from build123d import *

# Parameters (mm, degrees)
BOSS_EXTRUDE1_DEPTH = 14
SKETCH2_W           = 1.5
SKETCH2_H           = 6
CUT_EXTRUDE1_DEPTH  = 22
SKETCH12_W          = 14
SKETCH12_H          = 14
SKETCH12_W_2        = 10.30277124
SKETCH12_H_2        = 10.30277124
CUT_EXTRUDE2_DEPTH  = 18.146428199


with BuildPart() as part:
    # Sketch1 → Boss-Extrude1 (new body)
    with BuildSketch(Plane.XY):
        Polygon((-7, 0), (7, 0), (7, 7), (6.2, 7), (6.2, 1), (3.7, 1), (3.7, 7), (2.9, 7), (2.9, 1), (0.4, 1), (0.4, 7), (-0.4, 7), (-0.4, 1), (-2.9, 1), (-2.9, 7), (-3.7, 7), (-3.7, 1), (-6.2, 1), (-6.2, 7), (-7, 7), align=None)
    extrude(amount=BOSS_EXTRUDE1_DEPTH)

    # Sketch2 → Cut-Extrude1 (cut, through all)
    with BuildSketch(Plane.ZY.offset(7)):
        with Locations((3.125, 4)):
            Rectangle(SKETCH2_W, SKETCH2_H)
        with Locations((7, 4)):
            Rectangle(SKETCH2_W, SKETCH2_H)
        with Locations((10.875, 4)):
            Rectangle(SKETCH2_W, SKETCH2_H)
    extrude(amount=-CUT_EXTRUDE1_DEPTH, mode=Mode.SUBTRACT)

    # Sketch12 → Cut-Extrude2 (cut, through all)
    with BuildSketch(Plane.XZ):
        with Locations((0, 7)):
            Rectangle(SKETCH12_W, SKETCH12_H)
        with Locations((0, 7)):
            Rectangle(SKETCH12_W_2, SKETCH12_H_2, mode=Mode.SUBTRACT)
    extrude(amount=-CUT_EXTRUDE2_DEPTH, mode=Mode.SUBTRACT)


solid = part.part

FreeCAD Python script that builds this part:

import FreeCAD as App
import Part
import Sketcher

V = App.Vector
Q = App.Units.Quantity

doc = App.newDocument("Part")
body = doc.addObject("PartDesign::Body", "Body")

# Sketch on XY plane
sketch1 = body.newObject("Sketcher::SketchObject", "Sketch")
sketch1.AttachmentSupport = (doc.getObject("XY_Plane"), [""])
sketch1.MapMode = "FlatFace"
sketch1.addGeometry(Part.LineSegment(V(-7, 0, 0), V(7, 0, 0)), False)
sketch1.addGeometry(Part.LineSegment(V(7, 0, 0), V(7, 7, 0)), False)
sketch1.addGeometry(Part.LineSegment(V(7, 7, 0), V(6.2, 7, 0)), False)
sketch1.addGeometry(Part.LineSegment(V(6.2, 7, 0), V(6.2, 1, 0)), False)
sketch1.addGeometry(Part.LineSegment(V(6.2, 1, 0), V(3.7, 1, 0)), False)
sketch1.addGeometry(Part.LineSegment(V(3.7, 1, 0), V(3.7, 7, 0)), False)
sketch1.addGeometry(Part.LineSegment(V(3.7, 7, 0), V(2.9, 7, 0)), False)
sketch1.addGeometry(Part.LineSegment(V(2.9, 7, 0), V(2.9, 1, 0)), False)
sketch1.addGeometry(Part.LineSegment(V(2.9, 1, 0), V(0.4, 1, 0)), False)
sketch1.addGeometry(Part.LineSegment(V(0.4, 1, 0), V(0.4, 7, 0)), False)
sketch1.addGeometry(Part.LineSegment(V(0.4, 7, 0), V(-0.4, 7, 0)), False)
sketch1.addGeometry(Part.LineSegment(V(-0.4, 7, 0), V(-0.4, 1, 0)), False)
sketch1.addGeometry(Part.LineSegment(V(-0.4, 1, 0), V(-2.9, 1, 0)), False)
sketch1.addGeometry(Part.LineSegment(V(-2.9, 1, 0), V(-2.9, 7, 0)), False)
sketch1.addGeometry(Part.LineSegment(V(-2.9, 7, 0), V(-3.7, 7, 0)), False)
sketch1.addGeometry(Part.LineSegment(V(-3.7, 7, 0), V(-3.7, 1, 0)), False)
sketch1.addGeometry(Part.LineSegment(V(-3.7, 1, 0), V(-6.2, 1, 0)), False)
sketch1.addGeometry(Part.LineSegment(V(-6.2, 1, 0), V(-6.2, 7, 0)), False)
sketch1.addGeometry(Part.LineSegment(V(-6.2, 7, 0), V(-7, 7, 0)), False)
sketch1.addGeometry(Part.LineSegment(V(-7, 7, 0), V(-7, 0, 0)), False)
sketch1.addConstraint(Sketcher.Constraint("Coincident", 0, 2, 1, 1))
sketch1.addConstraint(Sketcher.Constraint("Coincident", 1, 2, 2, 1))
sketch1.addConstraint(Sketcher.Constraint("Coincident", 2, 2, 3, 1))
sketch1.addConstraint(Sketcher.Constraint("Coincident", 3, 2, 4, 1))
sketch1.addConstraint(Sketcher.Constraint("Coincident", 4, 2, 5, 1))
sketch1.addConstraint(Sketcher.Constraint("Coincident", 5, 2, 6, 1))
sketch1.addConstraint(Sketcher.Constraint("Coincident", 6, 2, 7, 1))
sketch1.addConstraint(Sketcher.Constraint("Coincident", 7, 2, 8, 1))
sketch1.addConstraint(Sketcher.Constraint("Coincident", 8, 2, 9, 1))
sketch1.addConstraint(Sketcher.Constraint("Coincident", 9, 2, 10, 1))
sketch1.addConstraint(Sketcher.Constraint("Coincident", 10, 2, 11, 1))
sketch1.addConstraint(Sketcher.Constraint("Coincident", 11, 2, 12, 1))
sketch1.addConstraint(Sketcher.Constraint("Coincident", 12, 2, 13, 1))
sketch1.addConstraint(Sketcher.Constraint("Coincident", 13, 2, 14, 1))
sketch1.addConstraint(Sketcher.Constraint("Coincident", 14, 2, 15, 1))
sketch1.addConstraint(Sketcher.Constraint("Coincident", 15, 2, 16, 1))
sketch1.addConstraint(Sketcher.Constraint("Coincident", 16, 2, 17, 1))
sketch1.addConstraint(Sketcher.Constraint("Coincident", 17, 2, 18, 1))
sketch1.addConstraint(Sketcher.Constraint("Coincident", 18, 2, 19, 1))
sketch1.addConstraint(Sketcher.Constraint("Coincident", 19, 2, 0, 1))
sketch1.addConstraint(Sketcher.Constraint("Horizontal", 0))
sketch1.addConstraint(Sketcher.Constraint("Vertical", 1))
sketch1.addConstraint(Sketcher.Constraint("Horizontal", 2))
sketch1.addConstraint(Sketcher.Constraint("Vertical", 3))
sketch1.addConstraint(Sketcher.Constraint("Horizontal", 4))
sketch1.addConstraint(Sketcher.Constraint("Vertical", 5))
sketch1.addConstraint(Sketcher.Constraint("Horizontal", 6))
sketch1.addConstraint(Sketcher.Constraint("Vertical", 7))
sketch1.addConstraint(Sketcher.Constraint("Horizontal", 8))
sketch1.addConstraint(Sketcher.Constraint("Vertical", 9))
sketch1.addConstraint(Sketcher.Constraint("Horizontal", 10))
sketch1.addConstraint(Sketcher.Constraint("Vertical", 11))
sketch1.addConstraint(Sketcher.Constraint("Horizontal", 12))
sketch1.addConstraint(Sketcher.Constraint("Vertical", 13))
sketch1.addConstraint(Sketcher.Constraint("Horizontal", 14))
sketch1.addConstraint(Sketcher.Constraint("Vertical", 15))
sketch1.addConstraint(Sketcher.Constraint("Horizontal", 16))
sketch1.addConstraint(Sketcher.Constraint("Vertical", 17))
sketch1.addConstraint(Sketcher.Constraint("Horizontal", 18))
sketch1.addConstraint(Sketcher.Constraint("Vertical", 19))
sketch1.addConstraint(Sketcher.Constraint("Symmetric", 0, 2, 19, 2, -1, 1))
sketch1.addConstraint(Sketcher.Constraint("Symmetric", 8, 2, 11, 2, -2))
sketch1.addConstraint(Sketcher.Constraint("Symmetric", 6, 2, 13, 2, -2))
sketch1.addConstraint(Sketcher.Constraint("Symmetric", 4, 2, 15, 2, -2))
sketch1.addConstraint(Sketcher.Constraint("Symmetric", 2, 2, 17, 2, -2))
sketch1.addConstraint(Sketcher.Constraint("Horizontal", 2, 2, 5, 2))
sketch1.addConstraint(Sketcher.Constraint("Horizontal", 4, 2, 7, 2))
sketch1.addConstraint(Sketcher.Constraint("Horizontal", 6, 2, 9, 2))
sketch1.addConstraint(Sketcher.Constraint("Equal", 2, 6))
sketch1.addConstraint(Sketcher.Constraint("Equal", 4, 8))
sketch1.addConstraint(Sketcher.Constraint("Equal", 6, 10))
sketch1.addConstraint(Sketcher.Constraint("DistanceX", 0, 1, 0, 2, Q("14 mm")))
sketch1.addConstraint(Sketcher.Constraint("DistanceY", 1, 1, 1, 2, Q("7 mm")))
sketch1.addConstraint(Sketcher.Constraint("DistanceY", 3, 2, 3, 1, Q("6 mm")))
sketch1.addConstraint(Sketcher.Constraint("DistanceX", 2, 2, 2, 1, Q("0.8 mm")))
pad1 = body.newObject("PartDesign::Pad", "Pad")
pad1.Profile = sketch1
pad1.Length = 14

# Sketch on YZ plane
sketch2 = body.newObject("Sketcher::SketchObject", "Sketch001")
sketch2.AttachmentSupport = (doc.getObject("YZ_Plane"), [""])
sketch2.MapMode = "FlatFace"
sketch2.AttachmentOffset = App.Placement(V(0, 0, -7), App.Rotation())
sketch2.addGeometry(Part.LineSegment(V(7, 2.4, 0), V(1, 2.4, 0)), False)
sketch2.addGeometry(Part.LineSegment(V(1, 2.4, 0), V(1, 3.9, 0)), False)
sketch2.addGeometry(Part.LineSegment(V(1, 3.9, 0), V(7, 3.9, 0)), False)
sketch2.addGeometry(Part.LineSegment(V(7, 3.9, 0), V(7, 2.4, 0)), False)
sketch2.addGeometry(Part.LineSegment(V(7, 6.2, 0), V(1, 6.2, 0)), False)
sketch2.addGeometry(Part.LineSegment(V(1, 6.2, 0), V(1, 7.8, 0)), False)
sketch2.addGeometry(Part.LineSegment(V(1, 7.8, 0), V(7, 7.8, 0)), False)
sketch2.addGeometry(Part.LineSegment(V(7, 7.8, 0), V(7, 6.2, 0)), False)
sketch2.addGeometry(Part.LineSegment(V(7, 10.1, 0), V(1, 10.1, 0)), False)
sketch2.addGeometry(Part.LineSegment(V(1, 10.1, 0), V(1, 11.6, 0)), False)
sketch2.addGeometry(Part.LineSegment(V(1, 11.6, 0), V(7, 11.6, 0)), False)
sketch2.addGeometry(Part.LineSegment(V(7, 11.6, 0), V(7, 10.1, 0)), False)
sketch2.addConstraint(Sketcher.Constraint("Coincident", 0, 2, 1, 1))
sketch2.addConstraint(Sketcher.Constraint("Coincident", 1, 2, 2, 1))
sketch2.addConstraint(Sketcher.Constraint("Coincident", 2, 2, 3, 1))
sketch2.addConstraint(Sketcher.Constraint("Coincident", 3, 2, 0, 1))
sketch2.addConstraint(Sketcher.Constraint("Coincident", 4, 2, 5, 1))
sketch2.addConstraint(Sketcher.Constraint("Coincident", 5, 2, 6, 1))
sketch2.addConstraint(Sketcher.Constraint("Coincident", 6, 2, 7, 1))
sketch2.addConstraint(Sketcher.Constraint("Coincident", 7, 2, 4, 1))
sketch2.addConstraint(Sketcher.Constraint("Coincident", 8, 2, 9, 1))
sketch2.addConstraint(Sketcher.Constraint("Coincident", 9, 2, 10, 1))
sketch2.addConstraint(Sketcher.Constraint("Coincident", 10, 2, 11, 1))
sketch2.addConstraint(Sketcher.Constraint("Coincident", 11, 2, 8, 1))
sketch2.addConstraint(Sketcher.Constraint("Horizontal", 0))
sketch2.addConstraint(Sketcher.Constraint("Vertical", 1))
sketch2.addConstraint(Sketcher.Constraint("Horizontal", 2))
sketch2.addConstraint(Sketcher.Constraint("Vertical", 3))
sketch2.addConstraint(Sketcher.Constraint("Horizontal", 4))
sketch2.addConstraint(Sketcher.Constraint("Vertical", 5))
sketch2.addConstraint(Sketcher.Constraint("Horizontal", 6))
sketch2.addConstraint(Sketcher.Constraint("Vertical", 7))
sketch2.addConstraint(Sketcher.Constraint("Horizontal", 8))
sketch2.addConstraint(Sketcher.Constraint("Vertical", 9))
sketch2.addConstraint(Sketcher.Constraint("Horizontal", 10))
sketch2.addConstraint(Sketcher.Constraint("Vertical", 11))
sketch2.addConstraint(Sketcher.Constraint("Vertical", 1, 2, 4, 2))
sketch2.addConstraint(Sketcher.Constraint("Vertical", 3, 2, 6, 2))
sketch2.addConstraint(Sketcher.Constraint("Vertical", 5, 2, 8, 2))
sketch2.addConstraint(Sketcher.Constraint("Vertical", 7, 2, 10, 2))
sketch2.addConstraint(Sketcher.Constraint("Equal", 3, 5))
sketch2.addConstraint(Sketcher.Constraint("Equal", 7, 9))
sketch2.addConstraint(Sketcher.Constraint("DistanceX", 0, 2, 0, 1, Q("6 mm")))
sketch2.addConstraint(Sketcher.Constraint("DistanceY", 1, 1, 1, 2, Q("1.5 mm")))
sketch2.addConstraint(Sketcher.Constraint("DistanceX", -1, 1, 0, 2, Q("1 mm")))
sketch2.addConstraint(Sketcher.Constraint("DistanceY", -1, 1, 4, 2, Q("6.25 mm")))
sketch2.addConstraint(Sketcher.Constraint("DistanceY", 1, 2, 8, 2, Q("6.25 mm")))
sketch2.addConstraint(Sketcher.Constraint("DistanceY", -1, 1, 0, 2, Q("2.375 mm")))
pocket1 = body.newObject("PartDesign::Pocket", "Pocket")
pocket1.Profile = sketch2
pocket1.Type = "ThroughAll"
pocket1.Reversed = True

# Sketch on XZ plane
sketch3 = body.newObject("Sketcher::SketchObject", "Sketch002")
sketch3.AttachmentSupport = (doc.getObject("XZ_Plane"), [""])
sketch3.MapMode = "FlatFace"
sketch3.addGeometry(Part.LineSegment(V(-7, 14, 0), V(-7, 0, 0)), False)
sketch3.addGeometry(Part.LineSegment(V(-7, 0, 0), V(7, 0, 0)), False)
sketch3.addGeometry(Part.LineSegment(V(7, 0, 0), V(7, 14, 0)), False)
sketch3.addGeometry(Part.LineSegment(V(7, 14, 0), V(-7, 14, 0)), False)
sketch3.addGeometry(Part.LineSegment(V(5, 2, 0), V(-5, 2, 0)), False)
sketch3.addGeometry(Part.LineSegment(V(-5, 2, 0), V(-5, 12, 0)), False)
sketch3.addGeometry(Part.LineSegment(V(-5, 12, 0), V(5, 12, 0)), False)
sketch3.addGeometry(Part.LineSegment(V(5, 12, 0), V(5, 2, 0)), False)
sketch3.addConstraint(Sketcher.Constraint("Coincident", 0, 2, 1, 1))
sketch3.addConstraint(Sketcher.Constraint("Coincident", 1, 2, 2, 1))
sketch3.addConstraint(Sketcher.Constraint("Coincident", 2, 2, 3, 1))
sketch3.addConstraint(Sketcher.Constraint("Coincident", 3, 2, 0, 1))
sketch3.addConstraint(Sketcher.Constraint("Coincident", 4, 2, 5, 1))
sketch3.addConstraint(Sketcher.Constraint("Coincident", 5, 2, 6, 1))
sketch3.addConstraint(Sketcher.Constraint("Coincident", 6, 2, 7, 1))
sketch3.addConstraint(Sketcher.Constraint("Coincident", 7, 2, 4, 1))
sketch3.addConstraint(Sketcher.Constraint("Vertical", 0))
sketch3.addConstraint(Sketcher.Constraint("Horizontal", 1))
sketch3.addConstraint(Sketcher.Constraint("Vertical", 2))
sketch3.addConstraint(Sketcher.Constraint("Horizontal", 3))
sketch3.addConstraint(Sketcher.Constraint("Horizontal", 4))
sketch3.addConstraint(Sketcher.Constraint("Vertical", 5))
sketch3.addConstraint(Sketcher.Constraint("Horizontal", 6))
sketch3.addConstraint(Sketcher.Constraint("Vertical", 7))
sketch3.addConstraint(Sketcher.Constraint("Symmetric", 0, 2, 1, 2, -1, 1))
sketch3.addConstraint(Sketcher.Constraint("Equal", 3, 0))
sketch3.addConstraint(Sketcher.Constraint("Equal", 6, 5))
sketch3.addConstraint(Sketcher.Constraint("DistanceX", 1, 1, 1, 2, Q("14 mm")))
sketch3.addConstraint(Sketcher.Constraint("DistanceX", 4, 2, 4, 1, Q("10.302771 mm")))
sketch3.addConstraint(Sketcher.Constraint("DistanceX", 4, 2, -1, 1, Q("5.151386 mm")))
sketch3.addConstraint(Sketcher.Constraint("DistanceY", -1, 1, 4, 2, Q("1.848614 mm")))
pocket2 = body.newObject("PartDesign::Pocket", "Pocket001")
pocket2.Profile = sketch3
pocket2.Type = "ThroughAll"

doc.recompute()
